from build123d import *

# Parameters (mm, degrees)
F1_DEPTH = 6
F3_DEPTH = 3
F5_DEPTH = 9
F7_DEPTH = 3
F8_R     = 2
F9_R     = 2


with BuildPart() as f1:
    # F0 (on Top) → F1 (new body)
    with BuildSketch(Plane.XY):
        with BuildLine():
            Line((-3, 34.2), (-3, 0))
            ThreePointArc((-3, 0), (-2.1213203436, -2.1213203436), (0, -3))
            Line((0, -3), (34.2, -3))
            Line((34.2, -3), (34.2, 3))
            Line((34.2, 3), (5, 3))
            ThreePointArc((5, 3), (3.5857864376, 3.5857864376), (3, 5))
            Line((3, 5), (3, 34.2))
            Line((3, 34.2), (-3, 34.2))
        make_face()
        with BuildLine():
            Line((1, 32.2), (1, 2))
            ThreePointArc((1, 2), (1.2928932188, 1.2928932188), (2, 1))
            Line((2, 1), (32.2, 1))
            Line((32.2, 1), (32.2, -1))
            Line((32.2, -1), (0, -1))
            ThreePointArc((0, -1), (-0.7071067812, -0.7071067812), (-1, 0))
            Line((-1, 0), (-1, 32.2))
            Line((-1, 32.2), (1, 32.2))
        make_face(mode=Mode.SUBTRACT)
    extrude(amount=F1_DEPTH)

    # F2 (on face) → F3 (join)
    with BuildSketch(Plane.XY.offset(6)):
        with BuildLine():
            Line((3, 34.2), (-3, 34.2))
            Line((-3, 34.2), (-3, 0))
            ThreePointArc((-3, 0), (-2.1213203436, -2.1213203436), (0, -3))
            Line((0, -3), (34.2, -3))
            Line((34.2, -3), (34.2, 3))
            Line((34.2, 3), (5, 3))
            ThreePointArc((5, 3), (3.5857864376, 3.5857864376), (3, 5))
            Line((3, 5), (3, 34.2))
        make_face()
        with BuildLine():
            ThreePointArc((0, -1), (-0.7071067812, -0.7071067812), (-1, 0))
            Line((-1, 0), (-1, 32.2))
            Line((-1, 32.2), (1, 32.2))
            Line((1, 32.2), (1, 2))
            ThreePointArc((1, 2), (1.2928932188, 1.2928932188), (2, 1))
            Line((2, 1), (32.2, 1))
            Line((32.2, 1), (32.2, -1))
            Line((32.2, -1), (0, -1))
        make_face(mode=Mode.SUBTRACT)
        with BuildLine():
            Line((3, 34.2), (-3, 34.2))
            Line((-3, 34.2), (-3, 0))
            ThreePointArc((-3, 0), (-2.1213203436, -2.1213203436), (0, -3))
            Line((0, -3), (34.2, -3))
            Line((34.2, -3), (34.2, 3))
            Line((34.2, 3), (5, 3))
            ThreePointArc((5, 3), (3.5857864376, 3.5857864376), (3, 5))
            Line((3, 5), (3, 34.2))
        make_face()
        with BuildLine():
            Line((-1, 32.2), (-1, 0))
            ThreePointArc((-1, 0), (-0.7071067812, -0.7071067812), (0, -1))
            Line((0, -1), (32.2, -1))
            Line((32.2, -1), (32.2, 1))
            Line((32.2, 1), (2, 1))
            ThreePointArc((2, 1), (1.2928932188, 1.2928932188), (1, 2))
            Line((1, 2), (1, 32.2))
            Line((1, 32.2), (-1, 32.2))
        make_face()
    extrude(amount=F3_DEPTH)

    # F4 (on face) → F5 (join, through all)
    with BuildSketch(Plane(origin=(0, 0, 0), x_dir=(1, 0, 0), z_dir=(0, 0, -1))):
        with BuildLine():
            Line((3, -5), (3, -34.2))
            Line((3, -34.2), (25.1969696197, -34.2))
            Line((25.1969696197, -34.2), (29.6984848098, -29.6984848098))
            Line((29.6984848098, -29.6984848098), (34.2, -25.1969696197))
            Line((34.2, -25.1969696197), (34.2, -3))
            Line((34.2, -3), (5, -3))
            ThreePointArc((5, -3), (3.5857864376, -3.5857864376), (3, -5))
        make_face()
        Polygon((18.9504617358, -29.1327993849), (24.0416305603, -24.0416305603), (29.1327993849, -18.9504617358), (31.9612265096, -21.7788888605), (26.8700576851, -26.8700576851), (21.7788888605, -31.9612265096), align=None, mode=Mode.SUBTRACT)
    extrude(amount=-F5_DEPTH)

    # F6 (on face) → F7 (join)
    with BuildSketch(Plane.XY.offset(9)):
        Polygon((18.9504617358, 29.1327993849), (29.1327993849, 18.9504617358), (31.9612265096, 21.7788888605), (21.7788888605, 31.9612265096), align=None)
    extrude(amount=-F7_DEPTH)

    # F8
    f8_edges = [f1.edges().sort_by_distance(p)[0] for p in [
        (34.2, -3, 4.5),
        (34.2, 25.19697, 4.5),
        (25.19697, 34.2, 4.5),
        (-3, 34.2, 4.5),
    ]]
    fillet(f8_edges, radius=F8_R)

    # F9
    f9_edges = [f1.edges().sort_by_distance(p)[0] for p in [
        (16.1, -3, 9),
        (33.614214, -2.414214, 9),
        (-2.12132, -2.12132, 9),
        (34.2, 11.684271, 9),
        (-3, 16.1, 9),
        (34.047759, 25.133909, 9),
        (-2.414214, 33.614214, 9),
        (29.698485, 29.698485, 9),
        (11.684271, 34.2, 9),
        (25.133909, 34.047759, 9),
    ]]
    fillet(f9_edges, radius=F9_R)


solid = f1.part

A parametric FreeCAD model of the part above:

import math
import FreeCAD as App
import Part
import Sketcher
Q = App.Units.Quantity


def edges_at(feature, points):
    """Names of the edges that pass closest to the given points."""
    edges = feature.Shape.Edges
    near = lambda p: min(range(len(edges)), key=lambda i: edges[i].distToShape(Part.Vertex(*p))[0])
    return sorted({f"Edge{near(p) + 1}" for p in points})


def add_polygon(sketch, points):
    """Adds a closed chain of lines whose ends are joined by coincident constraints."""
    first, n = sketch.GeometryCount, len(points)
    for a, b in zip(points, points[1:] + points[:1]):
        sketch.addGeometry(Part.LineSegment(App.Vector(*a, 0), App.Vector(*b, 0)), False)
    for i in range(n):
        sketch.addConstraint(Sketcher.Constraint("Coincident", first + i, 2, first + (i + 1) % n, 1))

doc = App.newDocument("Part")
body = doc.addObject("PartDesign::Body", "Body")

sketch1 = body.newObject("Sketcher::SketchObject", "Sketch")
sketch1.AttachmentSupport = (doc.getObject("XY_Plane"), [""])
sketch1.MapMode = "FlatFace"
sketch1.addGeometry(Part.LineSegment(App.Vector(-3, 34.2, 0), App.Vector(-3, 0, 0)), False)
sketch1.addGeometry(Part.ArcOfCircle(Part.Circle(App.Vector(0, 0, 0), App.Vector(0, 0, 1), 3), math.radians(180), math.radians(270)), False)
sketch1.addGeometry(Part.LineSegment(App.Vector(0, -3, 0), App.Vector(34.2, -3, 0)), False)
sketch1.addGeometry(Part.LineSegment(App.Vector(34.2, -3, 0), App.Vector(34.2, 3, 0)), False)
sketch1.addGeometry(Part.LineSegment(App.Vector(34.2, 3, 0), App.Vector(5, 3, 0)), False)
sketch1.addGeometry(Part.ArcOfCircle(Part.Circle(App.Vector(5, 5, 0), App.Vector(0, 0, 1), 2), math.radians(180), math.radians(270)), False)
sketch1.addGeometry(Part.LineSegment(App.Vector(3, 5, 0), App.Vector(3, 34.2, 0)), False)
sketch1.addGeometry(Part.LineSegment(App.Vector(3, 34.2, 0), App.Vector(-3, 34.2, 0)), False)
sketch1.addGeometry(Part.LineSegment(App.Vector(-1, 32.2, 0), App.Vector(1, 32.2, 0)), False)
sketch1.addGeometry(Part.LineSegment(App.Vector(1, 32.2, 0), App.Vector(1, 2, 0)), False)
sketch1.addGeometry(Part.ArcOfCircle(Part.Circle(App.Vector(2, 2, 0), App.Vector(0, 0, 1), 1), math.radians(180), math.radians(270)), False)
sketch1.addGeometry(Part.LineSegment(App.Vector(2, 1, 0), App.Vector(32.2, 1, 0)), False)
sketch1.addGeometry(Part.LineSegment(App.Vector(32.2, 1, 0), App.Vector(32.2, -1, 0)), False)
sketch1.addGeometry(Part.LineSegment(App.Vector(32.2, -1, 0), App.Vector(0, -1, 0)), False)
sketch1.addGeometry(Part.ArcOfCircle(Part.Circle(App.Vector(0, 0, 0), App.Vector(0, 0, 1), 1), math.radians(180), math.radians(270)), False)
sketch1.addGeometry(Part.LineSegment(App.Vector(-1, 0, 0), App.Vector(-1, 32.2, 0)), False)
sketch1.addConstraint(Sketcher.Constraint("Tangent", 0, 2, 1, 1))
sketch1.addConstraint(Sketcher.Constraint("Tangent", 1, 2, 2, 1))
sketch1.addConstraint(Sketcher.Constraint("Coincident", 2, 2, 3, 1))
sketch1.addConstraint(Sketcher.Constraint("Coincident", 3, 2, 4, 1))
sketch1.addConstraint(Sketcher.Constraint("Tangent", 4, 2, 5, 2))
sketch1.addConstraint(Sketcher.Constraint("Tangent", 5, 1, 6, 1))
sketch1.addConstraint(Sketcher.Constraint("Coincident", 6, 2, 7, 1))
sketch1.addConstraint(Sketcher.Constraint("Coincident", 7, 2, 0, 1))
sketch1.addConstraint(Sketcher.Constraint("Coincident", 8, 2, 9, 1))
sketch1.addConstraint(Sketcher.Constraint("Tangent", 9, 2, 10, 1))
sketch1.addConstraint(Sketcher.Constraint("Tangent", 10, 2, 11, 1))
sketch1.addConstraint(Sketcher.Constraint("Coincident", 11, 2, 12, 1))
sketch1.addConstraint(Sketcher.Constraint("Coincident", 12, 2, 13, 1))
sketch1.addConstraint(Sketcher.Constraint("Tangent", 13, 2, 14, 2))
sketch1.addConstraint(Sketcher.Constraint("Tangent", 14, 1, 15, 1))
sketch1.addConstraint(Sketcher.Constraint("Coincident", 15, 2, 8, 1))
sketch1.addConstraint(Sketcher.Constraint("Vertical", 0))
sketch1.addConstraint(Sketcher.Constraint("Horizontal", 2))
sketch1.addConstraint(Sketcher.Constraint("Vertical", 3))
sketch1.addConstraint(Sketcher.Constraint("Horizontal", 4))
sketch1.addConstraint(Sketcher.Constraint("Vertical", 6))
sketch1.addConstraint(Sketcher.Constraint("Horizontal", 7))
sketch1.addConstraint(Sketcher.Constraint("Horizontal", 8))
sketch1.addConstraint(Sketcher.Constraint("Vertical", 9))
sketch1.addConstraint(Sketcher.Constraint("Horizontal", 11))
sketch1.addConstraint(Sketcher.Constraint("Vertical", 12))
sketch1.addConstraint(Sketcher.Constraint("Horizontal", 13))
sketch1.addConstraint(Sketcher.Constraint("Vertical", 15))
sketch1.addConstraint(Sketcher.Constraint("Coincident", 1, 3, -1, 1))
sketch1.addConstraint(Sketcher.Constraint("Coincident", 14, 3, -1, 1))
sketch1.addConstraint(Sketcher.Constraint("Equal", 10, 14))
sketch1.addConstraint(Sketcher.Constraint("Equal", 2, 0))
sketch1.addConstraint(Sketcher.Constraint("Equal", 7, 3))
sketch1.addConstraint(Sketcher.Constraint("Equal", 11, 9))
sketch1.addConstraint(Sketcher.Constraint("Equal", 8, 12))
sketch1.addConstraint(Sketcher.Constraint("Radius", 1, 3.0))
sketch1.addConstraint(Sketcher.Constraint("Radius", 5, 2.0))
sketch1.addConstraint(Sketcher.Constraint("Radius", 10, 1.0))
sketch1.addConstraint(Sketcher.Constraint("DistanceX", 7, 2, 7, 1, 6.0))
sketch1.addConstraint(Sketcher.Constraint("DistanceX", 8, 1, 8, 2, 2.0))
sketch1.addConstraint(Sketcher.Constraint("DistanceX", 2, 1, 2, 2, 34.2))
sketch1.addConstraint(Sketcher.Constraint("DistanceX", 11, 1, 11, 2, 30.2))
pad1 = body.newObject("PartDesign::Pad", "Pad")
pad1.Profile = sketch1
pad1.Length = 6

sketch2 = body.newObject("Sketcher::SketchObject", "Sketch001")
sketch2.AttachmentSupport = (doc.getObject("XY_Plane"), [""])
sketch2.MapMode = "FlatFace"
sketch2.AttachmentOffset = App.Placement(App.Vector(0, 0, 6), App.Rotation())
sketch2.addGeometry(Part.LineSegment(App.Vector(3, 34.2, 0), App.Vector(-3, 34.2, 0)), False)
sketch2.addGeometry(Part.LineSegment(App.Vector(-3, 34.2, 0), App.Vector(-3, 0, 0)), False)
sketch2.addGeometry(Part.ArcOfCircle(Part.Circle(App.Vector(0, 0, 0), App.Vector(0, 0, 1), 3), math.radians(180), math.radians(270)), False)
sketch2.addGeometry(Part.LineSegment(App.Vector(0, -3, 0), App.Vector(34.2, -3, 0)), False)
sketch2.addGeometry(Part.LineSegment(App.Vector(34.2, -3, 0), App.Vector(34.2, 3, 0)), False)
sketch2.addGeometry(Part.LineSegment(App.Vector(34.2, 3, 0), App.Vector(5, 3, 0)), False)
sketch2.addGeometry(Part.ArcOfCircle(Part.Circle(App.Vector(5, 5, 0), App.Vector(0, 0, 1), 2), math.radians(180), math.radians(270)), False)
sketch2.addGeometry(Part.LineSegment(App.Vector(3, 5, 0), App.Vector(3, 34.2, 0)), False)
sketch2.addConstraint(Sketcher.Constraint("Coincident", 0, 2, 1, 1))
sketch2.addConstraint(Sketcher.Constraint("Tangent", 1, 2, 2, 1))
sketch2.addConstraint(Sketcher.Constraint("Tangent", 2, 2, 3, 1))
sketch2.addConstraint(Sketcher.Constraint("Coincident", 3, 2, 4, 1))
sketch2.addConstraint(Sketcher.Constraint("Coincident", 4, 2, 5, 1))
sketch2.addConstraint(Sketcher.Constraint("Tangent", 5, 2, 6, 2))
sketch2.addConstraint(Sketcher.Constraint("Tangent", 6, 1, 7, 1))
sketch2.addConstraint(Sketcher.Constraint("Coincident", 7, 2, 0, 1))
sketch2.addConstraint(Sketcher.Constraint("Horizontal", 0))
sketch2.addConstraint(Sketcher.Constraint("Vertical", 1))
sketch2.addConstraint(Sketcher.Constraint("Horizontal", 3))
sketch2.addConstraint(Sketcher.Constraint("Vertical", 4))
sketch2.addConstraint(Sketcher.Constraint("Horizontal", 5))
sketch2.addConstraint(Sketcher.Constraint("Vertical", 7))
sketch2.addConstraint(Sketcher.Constraint("Coincident", 2, 3, -1, 1))
sketch2.addConstraint(Sketcher.Constraint("Equal", 3, 1))
sketch2.addConstraint(Sketcher.Constraint("Equal", 0, 4))
sketch2.addConstraint(Sketcher.Constraint("Radius", 2, 3.0))
sketch2.addConstraint(Sketcher.Constraint("Radius", 6, 2.0))
sketch2.addConstraint(Sketcher.Constraint("DistanceX", 0, 2, 0, 1, 6.0))
sketch2.addConstraint(Sketcher.Constraint("DistanceX", 3, 1, 3, 2, 34.2))
pad2 = body.newObject("PartDesign::Pad", "Pad001")
pad2.Profile = sketch2
pad2.Length = 3

sketch3 = body.newObject("Sketcher::SketchObject", "Sketch002")
sketch3.AttachmentSupport = (doc.getObject("XY_Plane"), [""])
sketch3.MapMode = "FlatFace"
sketch3.addGeometry(Part.LineSegment(App.Vector(3, 5, 0), App.Vector(3, 34.2, 0)), False)
sketch3.addGeometry(Part.LineSegment(App.Vector(3, 34.2, 0), App.Vector(25.19697, 34.2, 0)), False)
sketch3.addGeometry(Part.LineSegment(App.Vector(25.19697, 34.2, 0), App.Vector(29.698485, 29.698485, 0)), False)
sketch3.addGeometry(Part.LineSegment(App.Vector(29.698485, 29.698485, 0), App.Vector(34.2, 25.19697, 0)), False)
sketch3.addGeometry(Part.LineSegment(App.Vector(34.2, 25.19697, 0), App.Vector(34.2, 3, 0)), False)
sketch3.addGeometry(Part.LineSegment(App.Vector(34.2, 3, 0), App.Vector(5, 3, 0)), False)
sketch3.addGeometry(Part.ArcOfCircle(Part.Circle(App.Vector(5, 5, 0), App.Vector(0, 0, 1), 2), math.radians(180), math.radians(270)), False)
add_polygon(sketch3, [(21.778889, 31.961227), (18.950462, 29.132799), (24.041631, 24.041631), (29.132799, 18.950462), (31.961227, 21.778889), (26.870058, 26.870058)])
sketch3.addConstraint(Sketcher.Constraint("Coincident", 0, 2, 1, 1))
sketch3.addConstraint(Sketcher.Constraint("Coincident", 1, 2, 2, 1))
sketch3.addConstraint(Sketcher.Constraint("Coincident", 2, 2, 3, 1))
sketch3.addConstraint(Sketcher.Constraint("Coincident", 3, 2, 4, 1))
sketch3.addConstraint(Sketcher.Constraint("Coincident", 4, 2, 5, 1))
sketch3.addConstraint(Sketcher.Constraint("Tangent", 5, 2, 6, 2))
sketch3.addConstraint(Sketcher.Constraint("Tangent", 6, 1, 0, 1))
sketch3.addConstraint(Sketcher.Constraint("Vertical", 0))
sketch3.addConstraint(Sketcher.Constraint("Horizontal", 1))
sketch3.addConstraint(Sketcher.Constraint("Vertical", 4))
sketch3.addConstraint(Sketcher.Constraint("Horizontal", 5))
sketch3.addConstraint(Sketcher.Constraint("Parallel", 2, 3))
sketch3.addConstraint(Sketcher.Constraint("Perpendicular", 3, 7))
sketch3.addConstraint(Sketcher.Constraint("Perpendicular", 7, 8))
sketch3.addConstraint(Sketcher.Constraint("Parallel", 8, 9))
sketch3.addConstraint(Sketcher.Constraint("Perpendicular", 9, 10))
sketch3.addConstraint(Sketcher.Constraint("Perpendicular", 10, 11))
sketch3.addConstraint(Sketcher.Constraint("Parallel", 11, 12))
sketch3.addConstraint(Sketcher.Constraint("Equal", 5, 0))
sketch3.addConstraint(Sketcher.Constraint("Equal", 1, 4))
sketch3.addConstraint(Sketcher.Constraint("Equal", 2, 3))
sketch3.addConstraint(Sketcher.Constraint("Equal", 8, 9))
sketch3.addConstraint(Sketcher.Constraint("Equal", 9, 11))
sketch3.addConstraint(Sketcher.Constraint("Radius", 6, 2.0))
sketch3.addConstraint(Sketcher.Constraint("Distance", 7, 4.0))
sketch3.addConstraint(Sketcher.Constraint("DistanceX", 5, 2, 5, 1, 29.2))
sketch3.addConstraint(Sketcher.Constraint("DistanceX", -1, 1, 6, 3, 5.0))
sketch3.addConstraint(Sketcher.Constraint("DistanceY", -1, 1, 6, 3, 5.0))
sketch3.addConstraint(Sketcher.Constraint("Distance", 8, 7.2))
sketch3.addConstraint(Sketcher.Constraint("DistanceX", 1, 1, 1, 2, 22.19697))
sketch3.addConstraint(Sketcher.Constraint("DistanceY", -1, 1, 7, 2, 29.132799))
sketch3.addConstraint(Sketcher.Constraint("DistanceX", -1, 1, 9, 2, 29.132799))
pad3 = body.newObject("PartDesign::Pad", "Pad002")
pad3.Profile = sketch3
pad3.Length = 9

sketch4 = body.newObject("Sketcher::SketchObject", "Sketch003")
sketch4.AttachmentSupport = (doc.getObject("XY_Plane"), [""])
sketch4.MapMode = "FlatFace"
sketch4.AttachmentOffset = App.Placement(App.Vector(0, 0, 9), App.Rotation())
add_polygon(sketch4, [(18.950462, 29.132799), (29.132799, 18.950462), (31.961227, 21.778889), (21.778889, 31.961227)])
sketch4.addConstraint(Sketcher.Constraint("Perpendicular", 0, 1))
sketch4.addConstraint(Sketcher.Constraint("Perpendicular", 1, 2))
sketch4.addConstraint(Sketcher.Constraint("Perpendicular", 2, 3))
sketch4.addConstraint(Sketcher.Constraint("Angle", 0, Q("-45 deg")))
sketch4.addConstraint(Sketcher.Constraint("Distance", 1, 4.0))
sketch4.addConstraint(Sketcher.Constraint("Distance", 0, 14.4))
sketch4.addConstraint(Sketcher.Constraint("DistanceX", -1, 1, 0, 2, 29.132799))
sketch4.addConstraint(Sketcher.Constraint("DistanceY", -1, 1, 3, 2, 29.132799))
pad4 = body.newObject("PartDesign::Pad", "Pad003")
pad4.Profile = sketch4
pad4.Length = 3
pad4.Reversed = True
doc.recompute()

fillet = body.newObject("PartDesign::Fillet", "Fillet")
fillet.Base = (pad4, edges_at(pad4, [
    (34.2, -3, 4.5),
    (34.2, 25.197, 4.5),
    (25.197, 34.2, 4.5),
    (-3, 34.2, 4.5),
]))
fillet.Radius = 2
doc.recompute()

fillet2 = body.newObject("PartDesign::Fillet", "Fillet001")
fillet2.Base = (fillet, edges_at(fillet, [
    (16.1, -3, 9),
    (33.614, -2.414, 9),
    (-2.121, -2.121, 9),
    (34.2, 11.684, 9),
    (-3, 16.1, 9),
    (34.048, 25.134, 9),
    (-2.414, 33.614, 9),
    (27.741, 31.656, 9),
    (11.684, 34.2, 9),
    (25.134, 34.048, 9),
]))
fillet2.Radius = 2

doc.recompute()
